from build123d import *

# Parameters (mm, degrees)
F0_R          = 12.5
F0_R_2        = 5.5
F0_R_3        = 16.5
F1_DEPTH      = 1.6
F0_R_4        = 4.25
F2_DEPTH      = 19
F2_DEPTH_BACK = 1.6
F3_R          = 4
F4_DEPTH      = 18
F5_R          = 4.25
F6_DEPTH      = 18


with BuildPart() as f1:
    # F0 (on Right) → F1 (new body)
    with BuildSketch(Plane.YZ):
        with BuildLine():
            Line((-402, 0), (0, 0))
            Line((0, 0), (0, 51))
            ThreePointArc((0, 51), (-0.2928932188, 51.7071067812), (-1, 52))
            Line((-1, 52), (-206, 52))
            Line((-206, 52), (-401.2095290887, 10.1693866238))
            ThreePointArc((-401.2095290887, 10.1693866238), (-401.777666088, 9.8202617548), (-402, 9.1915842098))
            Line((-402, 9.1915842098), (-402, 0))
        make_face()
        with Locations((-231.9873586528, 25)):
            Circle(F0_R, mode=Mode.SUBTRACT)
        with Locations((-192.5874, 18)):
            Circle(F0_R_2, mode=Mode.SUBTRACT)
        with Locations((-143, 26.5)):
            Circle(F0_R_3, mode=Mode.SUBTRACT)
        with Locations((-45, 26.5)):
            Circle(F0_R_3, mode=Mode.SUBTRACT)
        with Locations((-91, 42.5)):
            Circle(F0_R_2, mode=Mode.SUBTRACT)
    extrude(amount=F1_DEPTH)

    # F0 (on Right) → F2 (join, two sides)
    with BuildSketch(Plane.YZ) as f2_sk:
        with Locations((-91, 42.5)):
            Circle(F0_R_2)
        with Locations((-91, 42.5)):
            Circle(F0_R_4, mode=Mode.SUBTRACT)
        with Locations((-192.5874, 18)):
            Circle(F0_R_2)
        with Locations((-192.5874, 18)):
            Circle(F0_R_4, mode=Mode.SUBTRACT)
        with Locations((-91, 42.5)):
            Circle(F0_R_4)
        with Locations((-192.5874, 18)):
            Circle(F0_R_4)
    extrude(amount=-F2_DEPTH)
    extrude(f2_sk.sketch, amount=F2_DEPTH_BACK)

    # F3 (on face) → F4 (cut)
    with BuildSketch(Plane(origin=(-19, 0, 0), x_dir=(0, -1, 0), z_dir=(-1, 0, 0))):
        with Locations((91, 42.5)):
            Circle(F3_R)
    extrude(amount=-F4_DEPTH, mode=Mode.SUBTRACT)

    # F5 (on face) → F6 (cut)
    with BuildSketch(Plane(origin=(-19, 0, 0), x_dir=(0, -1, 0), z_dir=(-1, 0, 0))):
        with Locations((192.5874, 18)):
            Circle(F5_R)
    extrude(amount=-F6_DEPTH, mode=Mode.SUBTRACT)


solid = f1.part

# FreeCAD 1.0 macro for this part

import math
import FreeCAD as App
import Part
import Sketcher
from FreeCAD import Vector

doc = App.newDocument("Part")
params = doc.addObject("Spreadsheet::Sheet", "Params")
for row, (alias, value) in enumerate([
    ("sketch1_diameter", "11 mm"),
    ("sketch1_diameter2", "25 mm"),
    ("sketch1_diameter3", "33 mm"),
    ("sketch1_radius", "1 mm"),
    ("sketch1_width", "402 mm"),
    ("pad1_length", "1.6 mm"),
    ("sketch2_diameter", "11 mm"),
    ("pad2_length", "19 mm"),
    ("pad2_length2", "1.6 mm"),
    ("sketch3_diameter", "8 mm"),
    ("pocket1_length", "18 mm"),
    ("sketch4_diameter", "8.5 mm"),
    ("pocket2_length", "18 mm"),
], start=1):
    params.set(f"A{row}", alias)
    params.set(f"B{row}", "=" + value)
    params.setAlias(f"B{row}", alias)

body = doc.addObject("PartDesign::Body", "Body")

sketch1 = body.newObject("Sketcher::SketchObject", "Sketch")
sketch1.AttachmentSupport = (doc.getObject("YZ_Plane"), [""])
sketch1.MapMode = "FlatFace"
sketch1.addGeometry(Part.LineSegment(Vector(-402, 0, 0), Vector(0, 0, 0)), False)
sketch1.addGeometry(Part.LineSegment(Vector(0, 0, 0), Vector(0, 51, 0)), False)
sketch1.addGeometry(Part.ArcOfCircle(Part.Circle(Vector(-1, 51, 0), Vector(0, 0, 1), 1), math.radians(0), math.radians(90)), False)
sketch1.addGeometry(Part.LineSegment(Vector(-1, 52, 0), Vector(-206, 52, 0)), False)
sketch1.addGeometry(Part.LineSegment(Vector(-206, 52, 0), Vector(-401.2, 10.2, 0)), False)
sketch1.addGeometry(Part.ArcOfCircle(Part.Circle(Vector(-401, 9.2, 0), Vector(0, 0, 1), 1), math.radians(102), math.radians(180)), False)
sketch1.addGeometry(Part.LineSegment(Vector(-402, 9.2, 0), Vector(-402, 0, 0)), False)
sketch1.addGeometry(Part.Circle(Vector(-192.6, 18, 0), Vector(0, 0, 1), 5.5), False)
sketch1.addGeometry(Part.Circle(Vector(-232, 25, 0), Vector(0, 0, 1), 12.5), False)
sketch1.addGeometry(Part.Circle(Vector(-143, 26.5, 0), Vector(0, 0, 1), 16.5), False)
sketch1.addGeometry(Part.Circle(Vector(-45, 26.5, 0), Vector(0, 0, 1), 16.5), False)
sketch1.addGeometry(Part.Circle(Vector(-91, 42.5, 0), Vector(0, 0, 1), 5.5), False)
sketch1.addConstraint(Sketcher.Constraint("Coincident", 0, 2, 1, 1))
sketch1.addConstraint(Sketcher.Constraint("Tangent", 1, 2, 2, 1))
sketch1.addConstraint(Sketcher.Constraint("Tangent", 2, 2, 3, 1))
sketch1.addConstraint(Sketcher.Constraint("Coincident", 3, 2, 4, 1))
sketch1.addConstraint(Sketcher.Constraint("Tangent", 4, 2, 5, 1))
sketch1.addConstraint(Sketcher.Constraint("Tangent", 5, 2, 6, 1))
sketch1.addConstraint(Sketcher.Constraint("Coincident", 6, 2, 0, 1))
sketch1.addConstraint(Sketcher.Constraint("Horizontal", 0))
sketch1.addConstraint(Sketcher.Constraint("Vertical", 1))
sketch1.addConstraint(Sketcher.Constraint("Horizontal", 3))
sketch1.addConstraint(Sketcher.Constraint("Vertical", 6))
sketch1.addConstraint(Sketcher.Constraint("Coincident", 0, 2, -1, 1))
sketch1.addConstraint(Sketcher.Constraint("Equal", 2, 5))
sketch1.addConstraint(Sketcher.Constraint("Equal", 9, 10))
sketch1.addConstraint(Sketcher.Constraint("Equal", 7, 11))
sketch1.addConstraint(Sketcher.Constraint("Horizontal", 9, 3, 10, 3))
sketch1.addConstraint(Sketcher.Constraint("Diameter", 7, 11.0))
sketch1.addConstraint(Sketcher.Constraint("Diameter", 8, 25.0))
sketch1.addConstraint(Sketcher.Constraint("Diameter", 9, 33.0))
sketch1.addConstraint(Sketcher.Constraint("Radius", 2, 1.0))
sketch1.addConstraint(Sketcher.Constraint("DistanceX", 0, 1, 0, 2, 402.0))
sketch1.addConstraint(Sketcher.Constraint("DistanceX", 3, 2, 3, 1, 205.0))
sketch1.addConstraint(Sketcher.Constraint("DistanceY", 1, 1, 1, 2, 51.0))
sketch1.addConstraint(Sketcher.Constraint("DistanceY", -1, 1, 7, 3, 18.0))
sketch1.addConstraint(Sketcher.Constraint("DistanceY", -1, 1, 8, 3, 25.0))
sketch1.addConstraint(Sketcher.Constraint("DistanceX", 9, 3, -1, 1, 143.0))
sketch1.addConstraint(Sketcher.Constraint("DistanceX", 10, 3, -1, 1, 45.0))
sketch1.addConstraint(Sketcher.Constraint("DistanceX", 11, 3, -1, 1, 91.0))
sketch1.addConstraint(Sketcher.Constraint("DistanceY", 10, 3, 11, 3, 16.0))
sketch1.addConstraint(Sketcher.Constraint("DistanceY", -1, 1, 9, 3, 26.5))
sketch1.addConstraint(Sketcher.Constraint("DistanceX", 7, 3, -1, 1, 192.5874))
sketch1.addConstraint(Sketcher.Constraint("Distance", 4, 199.641079))
sketch1.addConstraint(Sketcher.Constraint("DistanceX", 8, 3, -1, 1, 231.987359))
sketch1.setExpression("Constraints[16]", "Params.sketch1_diameter")
sketch1.setExpression("Constraints[17]", "Params.sketch1_diameter2")
sketch1.setExpression("Constraints[18]", "Params.sketch1_diameter3")
sketch1.setExpression("Constraints[19]", "Params.sketch1_radius")
sketch1.setExpression("Constraints[20]", "Params.sketch1_width")
pad1 = body.newObject("PartDesign::Pad", "Pad")
pad1.Profile = sketch1
pad1.setExpression("Length", "Params.pad1_length")

sketch2 = body.newObject("Sketcher::SketchObject", "Sketch001")
sketch2.AttachmentSupport = (doc.getObject("YZ_Plane"), [""])
sketch2.MapMode = "FlatFace"
sketch2.addGeometry(Part.Circle(Vector(-91, 42, 0), Vector(0, 0, 1), 6), False)
sketch2.addGeometry(Part.Circle(Vector(-193, 18, 0), Vector(0, 0, 1), 6), False)
sketch2.addConstraint(Sketcher.Constraint("Equal", 0, 1))
sketch2.addConstraint(Sketcher.Constraint("Diameter", 0, 11.0))
sketch2.addConstraint(Sketcher.Constraint("DistanceX", 0, 3, -1, 1, 91.0))
sketch2.addConstraint(Sketcher.Constraint("DistanceY", -1, 1, 1, 3, 18.0))
sketch2.addConstraint(Sketcher.Constraint("DistanceY", -1, 1, 0, 3, 42.5))
sketch2.addConstraint(Sketcher.Constraint("DistanceX", 1, 3, -1, 1, 192.5874))
sketch2.setExpression("Constraints[1]", "Params.sketch2_diameter")
pad2 = body.newObject("PartDesign::Pad", "Pad001")
pad2.Profile = sketch2
pad2.Type = "TwoLengths"
pad2.setExpression("Length", "Params.pad2_length")
pad2.setExpression("Length2", "Params.pad2_length2")
pad2.Reversed = True

sketch3 = body.newObject("Sketcher::SketchObject", "Sketch002")
sketch3.AttachmentSupport = (doc.getObject("YZ_Plane"), [""])
sketch3.MapMode = "FlatFace"
sketch3.AttachmentOffset = App.Placement(Vector(0, 0, -19), App.Rotation())
sketch3.addGeometry(Part.Circle(Vector(-91, 42.5, 0), Vector(0, 0, 1), 4), False)
sketch3.addConstraint(Sketcher.Constraint("Diameter", 0, 8.0))
sketch3.addConstraint(Sketcher.Constraint("DistanceX", 0, 3, -1, 1, 91.0))
sketch3.addConstraint(Sketcher.Constraint("DistanceY", -1, 1, 0, 3, 42.5))
sketch3.setExpression("Constraints[0]", "Params.sketch3_diameter")
pocket1 = body.newObject("PartDesign::Pocket", "Pocket")
pocket1.Profile = sketch3
pocket1.setExpression("Length", "Params.pocket1_length")
pocket1.Reversed = True

sketch4 = body.newObject("Sketcher::SketchObject", "Sketch003")
sketch4.AttachmentSupport = (doc.getObject("YZ_Plane"), [""])
sketch4.MapMode = "FlatFace"
sketch4.AttachmentOffset = App.Placement(Vector(0, 0, -19), App.Rotation())
sketch4.addGeometry(Part.Circle(Vector(-192.6, 18, 0), Vector(0, 0, 1), 4.2), False)
sketch4.addConstraint(Sketcher.Constraint("Diameter", 0, 8.5))
sketch4.addConstraint(Sketcher.Constraint("DistanceY", -1, 1, 0, 3, 18.0))
sketch4.addConstraint(Sketcher.Constraint("DistanceX", 0, 3, -1, 1, 192.5874))
sketch4.setExpression("Constraints[0]", "Params.sketch4_diameter")
pocket2 = body.newObject("PartDesign::Pocket", "Pocket001")
pocket2.Profile = sketch4
pocket2.setExpression("Length", "Params.pocket2_length")
pocket2.Reversed = True

doc.recompute()
